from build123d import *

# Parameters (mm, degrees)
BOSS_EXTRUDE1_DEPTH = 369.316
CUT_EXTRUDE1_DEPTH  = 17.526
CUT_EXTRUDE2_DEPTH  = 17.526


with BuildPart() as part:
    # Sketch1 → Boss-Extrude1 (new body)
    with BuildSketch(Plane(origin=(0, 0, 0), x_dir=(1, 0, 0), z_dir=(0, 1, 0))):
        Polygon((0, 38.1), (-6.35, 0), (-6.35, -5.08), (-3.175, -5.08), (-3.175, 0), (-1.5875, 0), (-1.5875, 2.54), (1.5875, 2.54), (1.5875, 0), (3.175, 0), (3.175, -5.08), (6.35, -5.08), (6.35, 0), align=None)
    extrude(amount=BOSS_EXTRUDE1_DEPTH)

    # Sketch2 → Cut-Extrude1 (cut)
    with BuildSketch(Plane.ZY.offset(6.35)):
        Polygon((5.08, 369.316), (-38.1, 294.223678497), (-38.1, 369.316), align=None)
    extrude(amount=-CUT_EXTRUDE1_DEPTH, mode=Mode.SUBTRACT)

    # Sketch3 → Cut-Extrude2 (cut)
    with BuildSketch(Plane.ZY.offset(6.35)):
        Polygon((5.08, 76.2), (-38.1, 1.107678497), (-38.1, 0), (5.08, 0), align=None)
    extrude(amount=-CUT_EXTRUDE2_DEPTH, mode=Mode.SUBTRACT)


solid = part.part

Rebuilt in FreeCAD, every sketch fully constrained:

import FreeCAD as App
import Part
import Sketcher

V = App.Vector
Q = App.Units.Quantity

doc = App.newDocument("Part")
body = doc.addObject("PartDesign::Body", "Body")

sketch1 = body.newObject("Sketcher::SketchObject", "Sketch")
sketch1.AttachmentSupport = (doc.getObject("XZ_Plane"), [""])
sketch1.MapMode = "FlatFace"
sketch1.addGeometry([
    Part.LineSegment(V(0, -38.1, 0), V(-6.35, 0, 0)),
    Part.LineSegment(V(-6.35, 0, 0), V(-6.35, 5.08, 0)),
    Part.LineSegment(V(-6.35, 5.08, 0), V(-3.175, 5.08, 0)),
    Part.LineSegment(V(-3.175, 5.08, 0), V(-3.175, 0, 0)),
    Part.LineSegment(V(-3.175, 0, 0), V(-1.5875, 0, 0)),
    Part.LineSegment(V(-1.5875, 0, 0), V(-1.5875, -2.54, 0)),
    Part.LineSegment(V(-1.5875, -2.54, 0), V(1.5875, -2.54, 0)),
    Part.LineSegment(V(1.5875, -2.54, 0), V(1.5875, 0, 0)),
    Part.LineSegment(V(1.5875, 0, 0), V(3.175, 0, 0)),
    Part.LineSegment(V(3.175, 0, 0), V(3.175, 5.08, 0)),
    Part.LineSegment(V(3.175, 5.08, 0), V(6.35, 5.08, 0)),
    Part.LineSegment(V(6.35, 5.08, 0), V(6.35, 0, 0)),
    Part.LineSegment(V(6.35, 0, 0), V(0, -38.1, 0)),
], False)
sketch1.addConstraint([
    Sketcher.Constraint("Coincident", 0, 2, 1, 1),
    Sketcher.Constraint("Coincident", 1, 2, 2, 1),
    Sketcher.Constraint("Coincident", 2, 2, 3, 1),
    Sketcher.Constraint("Coincident", 3, 2, 4, 1),
    Sketcher.Constraint("Coincident", 4, 2, 5, 1),
    Sketcher.Constraint("Coincident", 5, 2, 6, 1),
    Sketcher.Constraint("Coincident", 6, 2, 7, 1),
    Sketcher.Constraint("Coincident", 7, 2, 8, 1),
    Sketcher.Constraint("Coincident", 8, 2, 9, 1),
    Sketcher.Constraint("Coincident", 9, 2, 10, 1),
    Sketcher.Constraint("Coincident", 10, 2, 11, 1),
    Sketcher.Constraint("Coincident", 11, 2, 12, 1),
    Sketcher.Constraint("Coincident", 12, 2, 0, 1),
    Sketcher.Constraint("Vertical", 1),
    Sketcher.Constraint("Horizontal", 2),
    Sketcher.Constraint("Vertical", 3),
    Sketcher.Constraint("Horizontal", 4),
    Sketcher.Constraint("Vertical", 5),
    Sketcher.Constraint("Horizontal", 6),
    Sketcher.Constraint("Vertical", 7),
    Sketcher.Constraint("Horizontal", 8),
    Sketcher.Constraint("Vertical", 9),
    Sketcher.Constraint("Horizontal", 10),
    Sketcher.Constraint("Vertical", 11),
    Sketcher.Constraint("Symmetric", 4, 2, 7, 2, -1, 1),
    Sketcher.Constraint("Symmetric", 0, 2, 11, 2, -1, 1),
    Sketcher.Constraint("Symmetric", 3, 2, 8, 2, -2),
    Sketcher.Constraint("PointOnObject", 0, 2, -1),
    Sketcher.Constraint("PointOnObject", 12, 2, -2),
    Sketcher.Constraint("Horizontal", 2, 2, 9, 2),
    Sketcher.Constraint("Equal", 2, 6),
    Sketcher.Constraint("DistanceY", 1, 1, 1, 2, Q("0.2 in")),
    Sketcher.Constraint("DistanceY", 5, 2, 5, 1, Q("0.1 in")),
    Sketcher.Constraint("DistanceY", 12, 2, -1, 1, Q("1.5 in")),
    Sketcher.Constraint("DistanceX", 2, 1, 2, 2, Q("0.125 in")),
    Sketcher.Constraint("DistanceX", 4, 1, 4, 2, Q("0.0625 in")),
])
pad1 = body.newObject("PartDesign::Pad", "Pad")
pad1.Profile = sketch1
pad1.Length = Q("14.54 in")
pad1.Reversed = True

sketch2 = body.newObject("Sketcher::SketchObject", "Sketch001")
sketch2.AttachmentSupport = (doc.getObject("YZ_Plane"), [""])
sketch2.MapMode = "FlatFace"
sketch2.AttachmentOffset = App.Placement(V(0, 0, -0.25 * 25.4), App.Rotation())
sketch2.addGeometry([
    Part.LineSegment(V(294.223678, -38.1, 0), V(369.316, 5.08, 0)),
    Part.LineSegment(V(369.316, 5.08, 0), V(369.316, -38.1, 0)),
    Part.LineSegment(V(369.316, -38.1, 0), V(294.223678, -38.1, 0)),
], False)
sketch2.addConstraint([
    Sketcher.Constraint("Coincident", 0, 2, 1, 1),
    Sketcher.Constraint("Coincident", 1, 2, 2, 1),
    Sketcher.Constraint("Coincident", 2, 2, 0, 1),
    Sketcher.Constraint("Vertical", 1),
    Sketcher.Constraint("Horizontal", 2),
    Sketcher.Constraint("DistanceY", 1, 2, 1, 1, Q("1.7 in")),
    Sketcher.Constraint("DistanceY", -1, 1, 0, 2, Q("0.2 in")),
    Sketcher.Constraint("Angle", 0, Q("29.9 deg")),
    Sketcher.Constraint("DistanceX", -1, 1, 0, 2, Q("14.54 in")),
])
pocket1 = body.newObject("PartDesign::Pocket", "Pocket")
pocket1.Profile = sketch2
pocket1.Length = Q("0.69 in")
pocket1.Reversed = True

sketch3 = body.newObject("Sketcher::SketchObject", "Sketch002")
sketch3.AttachmentSupport = (doc.getObject("YZ_Plane"), [""])
sketch3.MapMode = "FlatFace"
sketch3.AttachmentOffset = App.Placement(V(0, 0, -0.25 * 25.4), App.Rotation())
sketch3.addGeometry([
    Part.LineSegment(V(76.2, 5.08, 0), V(1.107678, -38.1, 0)),
    Part.LineSegment(V(1.107678, -38.1, 0), V(0, -38.1, 0)),
    Part.LineSegment(V(0, -38.1, 0), V(0, 5.08, 0)),
    Part.LineSegment(V(0, 5.08, 0), V(76.2, 5.08, 0)),
], False)
sketch3.addConstraint([
    Sketcher.Constraint("Coincident", 0, 2, 1, 1),
    Sketcher.Constraint("Coincident", 1, 2, 2, 1),
    Sketcher.Constraint("Coincident", 2, 2, 3, 1),
    Sketcher.Constraint("Coincident", 3, 2, 0, 1),
    Sketcher.Constraint("Horizontal", 1),
    Sketcher.Constraint("Vertical", 2),
    Sketcher.Constraint("Horizontal", 3),
    Sketcher.Constraint("PointOnObject", 1, 2, -2),
    Sketcher.Constraint("DistanceX", 3, 1, 3, 2, Q("3 in")),
    Sketcher.Constraint("DistanceY", 2, 1, 2, 2, Q("1.7 in")),
    Sketcher.Constraint("DistanceY", 0, 2, -1, 1, Q("1.5 in")),
    Sketcher.Constraint("Angle", 0, Q("-150.1 deg")),
])
pocket2 = body.newObject("PartDesign::Pocket", "Pocket001")
pocket2.Profile = sketch3
pocket2.Length = Q("0.69 in")
pocket2.Reversed = True

doc.recompute()
